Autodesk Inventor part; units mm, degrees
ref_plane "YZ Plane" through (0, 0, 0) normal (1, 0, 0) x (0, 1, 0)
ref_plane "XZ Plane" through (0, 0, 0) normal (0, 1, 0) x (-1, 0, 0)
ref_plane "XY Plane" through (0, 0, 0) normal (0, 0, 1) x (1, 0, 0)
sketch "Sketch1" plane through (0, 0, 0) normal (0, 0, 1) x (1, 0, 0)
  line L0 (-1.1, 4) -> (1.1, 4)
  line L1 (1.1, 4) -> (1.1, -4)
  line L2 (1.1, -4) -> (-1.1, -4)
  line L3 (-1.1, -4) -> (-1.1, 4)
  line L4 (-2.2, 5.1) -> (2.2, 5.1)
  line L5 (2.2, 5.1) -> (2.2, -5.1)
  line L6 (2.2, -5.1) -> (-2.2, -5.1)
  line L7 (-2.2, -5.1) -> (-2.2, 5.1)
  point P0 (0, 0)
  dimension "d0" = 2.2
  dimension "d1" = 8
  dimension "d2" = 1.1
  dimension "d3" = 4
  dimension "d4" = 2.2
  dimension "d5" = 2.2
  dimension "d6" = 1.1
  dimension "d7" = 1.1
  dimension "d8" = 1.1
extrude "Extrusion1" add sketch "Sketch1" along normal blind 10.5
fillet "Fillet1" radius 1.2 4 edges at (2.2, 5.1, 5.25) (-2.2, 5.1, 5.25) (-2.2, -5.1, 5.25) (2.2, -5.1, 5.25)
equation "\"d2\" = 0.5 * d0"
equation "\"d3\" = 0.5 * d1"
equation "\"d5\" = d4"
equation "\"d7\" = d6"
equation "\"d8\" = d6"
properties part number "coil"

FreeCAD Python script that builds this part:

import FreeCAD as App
import Part
import Sketcher


def edges_at(feature, points):
    """Names of the edges that pass closest to the given points."""
    edges = feature.Shape.Edges
    near = lambda p: min(range(len(edges)), key=lambda i: edges[i].distToShape(Part.Vertex(*p))[0])
    return sorted({f"Edge{near(p) + 1}" for p in points})

doc = App.newDocument("Part")
body = doc.addObject("PartDesign::Body", "Body")

sketch1 = body.newObject("Sketcher::SketchObject", "Sketch")
sketch1.AttachmentSupport = (doc.getObject("XY_Plane"), [""])
sketch1.MapMode = "FlatFace"
sketch1.addGeometry(Part.LineSegment(App.Vector(2.2, 5.1, 0), App.Vector(-2.2, 5.1, 0)), False)
sketch1.addGeometry(Part.LineSegment(App.Vector(-2.2, 5.1, 0), App.Vector(-2.2, -5.1, 0)), False)
sketch1.addGeometry(Part.LineSegment(App.Vector(-2.2, -5.1, 0), App.Vector(2.2, -5.1, 0)), False)
sketch1.addGeometry(Part.LineSegment(App.Vector(2.2, -5.1, 0), App.Vector(2.2, 5.1, 0)), False)
sketch1.addGeometry(Part.LineSegment(App.Vector(-1.1, -4, 0), App.Vector(-1.1, 4, 0)), False)
sketch1.addGeometry(Part.LineSegment(App.Vector(-1.1, 4, 0), App.Vector(1.1, 4, 0)), False)
sketch1.addGeometry(Part.LineSegment(App.Vector(1.1, 4, 0), App.Vector(1.1, -4, 0)), False)
sketch1.addGeometry(Part.LineSegment(App.Vector(1.1, -4, 0), App.Vector(-1.1, -4, 0)), False)
sketch1.addConstraint(Sketcher.Constraint("Coincident", 0, 2, 1, 1))
sketch1.addConstraint(Sketcher.Constraint("Coincident", 1, 2, 2, 1))
sketch1.addConstraint(Sketcher.Constraint("Coincident", 2, 2, 3, 1))
sketch1.addConstraint(Sketcher.Constraint("Coincident", 3, 2, 0, 1))
sketch1.addConstraint(Sketcher.Constraint("Coincident", 4, 2, 5, 1))
sketch1.addConstraint(Sketcher.Constraint("Coincident", 5, 2, 6, 1))
sketch1.addConstraint(Sketcher.Constraint("Coincident", 6, 2, 7, 1))
sketch1.addConstraint(Sketcher.Constraint("Coincident", 7, 2, 4, 1))
sketch1.addConstraint(Sketcher.Constraint("Horizontal", 0))
sketch1.addConstraint(Sketcher.Constraint("Vertical", 1))
sketch1.addConstraint(Sketcher.Constraint("Horizontal", 2))
sketch1.addConstraint(Sketcher.Constraint("Vertical", 3))
sketch1.addConstraint(Sketcher.Constraint("Vertical", 4))
sketch1.addConstraint(Sketcher.Constraint("Horizontal", 5))
sketch1.addConstraint(Sketcher.Constraint("Vertical", 6))
sketch1.addConstraint(Sketcher.Constraint("Horizontal", 7))
sketch1.addConstraint(Sketcher.Constraint("Symmetric", 0, 2, 2, 2, -1, 1))
sketch1.addConstraint(Sketcher.Constraint("Symmetric", 4, 2, 6, 2, -1, 1))
sketch1.addConstraint(Sketcher.Constraint("DistanceY", 4, 1, 4, 2, 8.0))
sketch1.addConstraint(Sketcher.Constraint("DistanceX", 5, 1, 5, 2, 2.2))
sketch1.addConstraint(Sketcher.Constraint("DistanceX", 0, 2, -1, 1, 2.2))
sketch1.addConstraint(Sketcher.Constraint("DistanceY", 4, 2, 0, 2, 1.1))
pad1 = body.newObject("PartDesign::Pad", "Pad")
pad1.Profile = sketch1
pad1.Length = 10.5
doc.recompute()

fillet = body.newObject("PartDesign::Fillet", "Fillet")
fillet.Base = (pad1, edges_at(pad1, [
    (2.2, 5.1, 5.25),
    (-2.2, 5.1, 5.25),
    (-2.2, -5.1, 5.25),
    (2.2, -5.1, 5.25),
]))
fillet.Radius = 1.2

doc.recompute()
